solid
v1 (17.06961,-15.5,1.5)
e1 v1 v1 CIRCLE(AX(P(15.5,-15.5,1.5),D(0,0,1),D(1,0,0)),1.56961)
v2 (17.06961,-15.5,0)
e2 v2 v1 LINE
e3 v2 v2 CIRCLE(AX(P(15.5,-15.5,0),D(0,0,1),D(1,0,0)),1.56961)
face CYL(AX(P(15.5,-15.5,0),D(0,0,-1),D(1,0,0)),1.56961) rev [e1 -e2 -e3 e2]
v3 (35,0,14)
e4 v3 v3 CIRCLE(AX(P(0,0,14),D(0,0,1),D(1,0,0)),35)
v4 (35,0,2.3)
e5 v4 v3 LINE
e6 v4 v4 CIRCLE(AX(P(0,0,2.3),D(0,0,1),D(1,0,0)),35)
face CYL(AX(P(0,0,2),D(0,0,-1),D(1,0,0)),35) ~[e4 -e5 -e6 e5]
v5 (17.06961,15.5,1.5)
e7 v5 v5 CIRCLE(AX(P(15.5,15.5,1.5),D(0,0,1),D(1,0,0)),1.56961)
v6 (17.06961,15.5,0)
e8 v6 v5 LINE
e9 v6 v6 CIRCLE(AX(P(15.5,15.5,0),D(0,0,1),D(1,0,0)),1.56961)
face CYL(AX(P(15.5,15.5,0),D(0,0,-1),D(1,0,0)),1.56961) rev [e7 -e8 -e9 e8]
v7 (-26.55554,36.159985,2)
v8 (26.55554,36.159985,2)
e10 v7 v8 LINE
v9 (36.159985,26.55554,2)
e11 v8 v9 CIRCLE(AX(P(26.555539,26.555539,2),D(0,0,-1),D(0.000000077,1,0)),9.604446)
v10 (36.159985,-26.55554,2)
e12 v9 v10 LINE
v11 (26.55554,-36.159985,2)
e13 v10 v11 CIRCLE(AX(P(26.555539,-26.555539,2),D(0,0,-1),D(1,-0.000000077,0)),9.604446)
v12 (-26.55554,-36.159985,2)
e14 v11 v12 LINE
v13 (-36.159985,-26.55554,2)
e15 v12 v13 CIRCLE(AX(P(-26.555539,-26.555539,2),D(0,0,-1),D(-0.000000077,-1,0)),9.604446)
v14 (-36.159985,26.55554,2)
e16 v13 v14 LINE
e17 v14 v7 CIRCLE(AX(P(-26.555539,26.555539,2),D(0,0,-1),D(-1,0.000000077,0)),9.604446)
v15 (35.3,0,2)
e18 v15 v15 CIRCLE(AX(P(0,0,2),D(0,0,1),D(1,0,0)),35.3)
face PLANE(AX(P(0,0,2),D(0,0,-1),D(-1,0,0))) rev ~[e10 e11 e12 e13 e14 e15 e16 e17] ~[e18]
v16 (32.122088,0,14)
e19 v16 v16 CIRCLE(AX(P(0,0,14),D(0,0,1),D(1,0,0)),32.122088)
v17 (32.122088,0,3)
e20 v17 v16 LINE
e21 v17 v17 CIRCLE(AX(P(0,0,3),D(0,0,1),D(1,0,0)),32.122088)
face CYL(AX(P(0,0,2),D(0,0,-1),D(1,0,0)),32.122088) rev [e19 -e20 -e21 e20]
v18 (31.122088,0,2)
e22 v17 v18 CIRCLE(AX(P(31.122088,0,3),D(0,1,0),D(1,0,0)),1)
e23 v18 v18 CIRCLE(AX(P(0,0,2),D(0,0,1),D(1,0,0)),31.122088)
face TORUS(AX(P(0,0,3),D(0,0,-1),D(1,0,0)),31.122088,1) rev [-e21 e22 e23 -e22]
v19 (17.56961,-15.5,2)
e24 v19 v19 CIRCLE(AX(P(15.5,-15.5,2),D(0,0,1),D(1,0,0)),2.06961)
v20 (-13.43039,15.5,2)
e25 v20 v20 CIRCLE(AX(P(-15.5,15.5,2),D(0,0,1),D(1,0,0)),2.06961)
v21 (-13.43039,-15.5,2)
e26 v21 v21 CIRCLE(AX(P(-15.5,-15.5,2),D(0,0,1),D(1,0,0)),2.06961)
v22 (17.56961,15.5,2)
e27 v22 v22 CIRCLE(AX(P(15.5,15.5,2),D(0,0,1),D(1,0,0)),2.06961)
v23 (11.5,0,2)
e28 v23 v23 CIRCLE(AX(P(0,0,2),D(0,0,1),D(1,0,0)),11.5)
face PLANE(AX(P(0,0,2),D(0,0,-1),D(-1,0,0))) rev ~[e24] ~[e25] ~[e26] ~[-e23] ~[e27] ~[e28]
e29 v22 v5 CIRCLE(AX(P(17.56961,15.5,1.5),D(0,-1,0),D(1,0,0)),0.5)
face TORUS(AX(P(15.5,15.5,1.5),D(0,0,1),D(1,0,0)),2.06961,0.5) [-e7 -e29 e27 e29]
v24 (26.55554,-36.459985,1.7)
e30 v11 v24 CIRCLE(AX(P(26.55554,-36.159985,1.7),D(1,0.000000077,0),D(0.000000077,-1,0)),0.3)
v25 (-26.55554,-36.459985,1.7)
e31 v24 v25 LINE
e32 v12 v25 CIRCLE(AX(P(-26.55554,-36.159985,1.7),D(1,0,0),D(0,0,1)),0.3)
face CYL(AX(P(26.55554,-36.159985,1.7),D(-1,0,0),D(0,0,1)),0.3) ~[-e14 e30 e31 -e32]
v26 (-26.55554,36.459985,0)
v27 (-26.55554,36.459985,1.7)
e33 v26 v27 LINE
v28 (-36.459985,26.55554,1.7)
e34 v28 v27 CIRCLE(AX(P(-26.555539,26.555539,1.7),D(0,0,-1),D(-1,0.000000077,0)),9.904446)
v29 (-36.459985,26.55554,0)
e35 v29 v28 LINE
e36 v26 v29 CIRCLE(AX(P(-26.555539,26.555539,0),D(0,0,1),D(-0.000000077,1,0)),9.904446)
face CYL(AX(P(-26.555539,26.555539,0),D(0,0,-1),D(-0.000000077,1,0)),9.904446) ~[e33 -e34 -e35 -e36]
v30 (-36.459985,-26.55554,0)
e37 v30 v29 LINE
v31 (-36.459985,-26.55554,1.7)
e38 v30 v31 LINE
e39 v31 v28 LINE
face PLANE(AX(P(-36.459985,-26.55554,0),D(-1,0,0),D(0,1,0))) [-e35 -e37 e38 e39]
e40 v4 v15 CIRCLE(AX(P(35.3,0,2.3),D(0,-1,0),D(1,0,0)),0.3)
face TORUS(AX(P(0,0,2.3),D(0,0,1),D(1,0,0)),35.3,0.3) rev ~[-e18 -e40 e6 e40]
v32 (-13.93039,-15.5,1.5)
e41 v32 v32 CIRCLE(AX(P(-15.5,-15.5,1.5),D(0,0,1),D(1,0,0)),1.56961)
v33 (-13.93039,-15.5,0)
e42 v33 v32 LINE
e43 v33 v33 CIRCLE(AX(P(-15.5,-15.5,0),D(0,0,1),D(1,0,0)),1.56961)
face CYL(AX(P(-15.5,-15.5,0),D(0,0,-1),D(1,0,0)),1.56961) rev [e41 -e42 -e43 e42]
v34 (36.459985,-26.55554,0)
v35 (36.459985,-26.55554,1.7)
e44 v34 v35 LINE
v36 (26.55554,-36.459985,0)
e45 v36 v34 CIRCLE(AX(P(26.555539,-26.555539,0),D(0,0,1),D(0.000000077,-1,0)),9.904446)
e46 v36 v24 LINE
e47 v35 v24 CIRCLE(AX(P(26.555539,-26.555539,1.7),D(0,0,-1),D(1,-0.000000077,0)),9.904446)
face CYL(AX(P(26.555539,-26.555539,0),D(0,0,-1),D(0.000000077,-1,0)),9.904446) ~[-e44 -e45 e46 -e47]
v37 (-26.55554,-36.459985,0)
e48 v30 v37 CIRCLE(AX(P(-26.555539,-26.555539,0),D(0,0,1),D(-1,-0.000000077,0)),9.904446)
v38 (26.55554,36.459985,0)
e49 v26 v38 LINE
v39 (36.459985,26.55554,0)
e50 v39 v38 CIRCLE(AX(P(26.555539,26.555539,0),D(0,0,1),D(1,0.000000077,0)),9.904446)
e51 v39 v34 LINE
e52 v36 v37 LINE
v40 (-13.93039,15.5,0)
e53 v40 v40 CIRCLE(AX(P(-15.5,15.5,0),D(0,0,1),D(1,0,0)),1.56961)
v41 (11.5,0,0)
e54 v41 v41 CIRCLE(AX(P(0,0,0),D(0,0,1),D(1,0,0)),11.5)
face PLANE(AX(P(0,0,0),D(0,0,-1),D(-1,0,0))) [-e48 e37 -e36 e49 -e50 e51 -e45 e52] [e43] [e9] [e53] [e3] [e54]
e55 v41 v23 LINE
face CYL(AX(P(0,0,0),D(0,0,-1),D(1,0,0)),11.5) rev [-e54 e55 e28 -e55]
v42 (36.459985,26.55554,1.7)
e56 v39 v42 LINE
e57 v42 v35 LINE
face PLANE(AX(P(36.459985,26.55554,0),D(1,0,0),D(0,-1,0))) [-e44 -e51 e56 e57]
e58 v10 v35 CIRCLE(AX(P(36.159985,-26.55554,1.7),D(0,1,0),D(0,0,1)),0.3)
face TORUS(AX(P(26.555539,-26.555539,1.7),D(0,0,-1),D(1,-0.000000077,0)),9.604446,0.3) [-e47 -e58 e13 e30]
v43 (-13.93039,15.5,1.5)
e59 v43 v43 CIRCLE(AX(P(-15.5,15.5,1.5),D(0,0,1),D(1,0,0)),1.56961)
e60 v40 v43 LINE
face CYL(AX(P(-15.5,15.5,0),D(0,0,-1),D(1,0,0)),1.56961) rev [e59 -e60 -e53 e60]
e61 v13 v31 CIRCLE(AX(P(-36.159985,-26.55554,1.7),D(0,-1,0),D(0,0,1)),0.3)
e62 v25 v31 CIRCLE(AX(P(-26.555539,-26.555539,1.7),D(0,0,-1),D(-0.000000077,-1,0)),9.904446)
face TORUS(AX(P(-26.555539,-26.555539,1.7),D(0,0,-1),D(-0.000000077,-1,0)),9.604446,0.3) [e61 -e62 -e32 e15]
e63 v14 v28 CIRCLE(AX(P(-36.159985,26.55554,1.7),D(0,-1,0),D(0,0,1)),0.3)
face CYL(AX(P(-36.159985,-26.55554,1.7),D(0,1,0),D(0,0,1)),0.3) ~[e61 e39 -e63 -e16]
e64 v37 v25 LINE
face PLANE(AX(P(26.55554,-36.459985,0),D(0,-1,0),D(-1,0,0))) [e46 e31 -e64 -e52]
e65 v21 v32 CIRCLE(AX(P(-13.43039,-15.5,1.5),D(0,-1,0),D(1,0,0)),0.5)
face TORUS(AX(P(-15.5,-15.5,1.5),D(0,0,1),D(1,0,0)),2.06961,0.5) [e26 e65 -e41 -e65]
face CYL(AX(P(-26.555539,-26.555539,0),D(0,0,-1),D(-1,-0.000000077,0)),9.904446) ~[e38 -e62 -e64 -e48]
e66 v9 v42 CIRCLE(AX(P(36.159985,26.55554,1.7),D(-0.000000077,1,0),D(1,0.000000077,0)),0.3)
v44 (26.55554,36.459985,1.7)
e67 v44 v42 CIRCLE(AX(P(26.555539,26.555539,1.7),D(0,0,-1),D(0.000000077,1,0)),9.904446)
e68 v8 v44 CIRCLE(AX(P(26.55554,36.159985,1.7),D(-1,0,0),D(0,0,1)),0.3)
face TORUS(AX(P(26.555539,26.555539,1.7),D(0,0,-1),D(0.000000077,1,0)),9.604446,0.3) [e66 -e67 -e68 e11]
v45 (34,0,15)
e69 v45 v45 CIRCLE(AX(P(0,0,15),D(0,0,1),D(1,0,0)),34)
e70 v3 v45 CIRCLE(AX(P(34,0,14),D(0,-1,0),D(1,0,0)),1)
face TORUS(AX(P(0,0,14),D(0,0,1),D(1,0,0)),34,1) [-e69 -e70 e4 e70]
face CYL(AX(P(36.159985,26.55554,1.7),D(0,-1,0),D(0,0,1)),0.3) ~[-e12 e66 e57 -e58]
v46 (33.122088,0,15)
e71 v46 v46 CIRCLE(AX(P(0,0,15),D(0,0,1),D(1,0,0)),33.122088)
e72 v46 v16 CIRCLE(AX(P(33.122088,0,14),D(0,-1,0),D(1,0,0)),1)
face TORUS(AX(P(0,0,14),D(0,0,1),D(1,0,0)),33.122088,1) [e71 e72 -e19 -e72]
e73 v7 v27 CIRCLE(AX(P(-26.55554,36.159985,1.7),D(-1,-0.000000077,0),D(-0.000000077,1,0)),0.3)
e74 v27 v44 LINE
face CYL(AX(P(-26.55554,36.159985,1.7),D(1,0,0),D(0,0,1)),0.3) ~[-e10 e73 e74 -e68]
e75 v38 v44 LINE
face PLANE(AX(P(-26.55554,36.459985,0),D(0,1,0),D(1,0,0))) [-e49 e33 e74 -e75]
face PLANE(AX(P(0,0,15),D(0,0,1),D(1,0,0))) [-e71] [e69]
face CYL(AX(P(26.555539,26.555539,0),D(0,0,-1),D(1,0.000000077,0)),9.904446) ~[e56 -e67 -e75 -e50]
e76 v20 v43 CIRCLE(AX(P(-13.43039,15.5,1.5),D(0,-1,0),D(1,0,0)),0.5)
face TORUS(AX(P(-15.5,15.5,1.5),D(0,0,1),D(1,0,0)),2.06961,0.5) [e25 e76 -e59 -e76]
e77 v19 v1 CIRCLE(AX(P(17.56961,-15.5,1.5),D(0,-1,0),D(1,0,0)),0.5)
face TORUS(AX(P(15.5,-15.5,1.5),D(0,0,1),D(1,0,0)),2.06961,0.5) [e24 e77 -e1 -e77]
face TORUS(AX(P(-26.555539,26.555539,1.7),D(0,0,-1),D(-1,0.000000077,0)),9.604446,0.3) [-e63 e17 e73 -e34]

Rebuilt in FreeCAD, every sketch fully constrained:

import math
import FreeCAD as App
import Part
import Sketcher
from FreeCAD import Vector
Q = App.Units.Quantity


def edges_at(feature, points):
    """Names of the edges that pass closest to the given points."""
    edges = feature.Shape.Edges
    near = lambda p: min(range(len(edges)), key=lambda i: edges[i].distToShape(Part.Vertex(*p))[0])
    return sorted({f"Edge{near(p) + 1}" for p in points})

doc = App.newDocument("Part")
params = doc.addObject("Spreadsheet::Sheet", "Params")
for row, (alias, value) in enumerate([
    ("sketch1_diameter", "23 mm"),
    ("pad1_length", "2 mm"),
    ("sketch2_diameter", "70 mm"),
    ("pad2_length", "13 mm"),
    ("fillet_radius", "1 mm"),
    ("fillet2_radius", "0.3 mm"),
    ("fillet3_radius", "1 mm"),
    ("fillet4_radius", "0.5 mm"),
], start=1):
    params.set(f"A{row}", alias)
    params.set(f"B{row}", "=" + value)
    params.setAlias(f"B{row}", alias)

body = doc.addObject("PartDesign::Body", "Body")

# Sketch on XY plane
sketch1 = doc.addObject("Sketcher::SketchObject", "Sketch")
body.addObject(sketch1)
sketch1.AttachmentSupport = (doc.XY_Plane, [""])
sketch1.MapMode = "FlatFace"
sketch1.addGeometry([
    Part.LineSegment(Vector(26.6, 36.5, 0), Vector(-26.6, 36.5, 0)),  # 0
    Part.ArcOfCircle(Part.Circle(Vector(-26.6, 26.6, 0), Vector(0, 0, 1), 9.9), math.radians(90), math.radians(180)),  # 1
    Part.LineSegment(Vector(-36.5, 26.6, 0), Vector(-36.5, -26.6, 0)),  # 2
    Part.ArcOfCircle(Part.Circle(Vector(-26.6, -26.6, 0), Vector(0, 0, 1), 9.9), math.radians(-180), math.radians(-90)),  # 3
    Part.LineSegment(Vector(-26.6, -36.5, 0), Vector(26.6, -36.5, 0)),  # 4
    Part.ArcOfCircle(Part.Circle(Vector(26.6, -26.6, 0), Vector(0, 0, 1), 9.9), math.radians(-90), math.radians(0)),  # 5
    Part.LineSegment(Vector(36.5, -26.6, 0), Vector(36.5, 26.6, 0)),  # 6
    Part.ArcOfCircle(Part.Circle(Vector(26.6, 26.6, 0), Vector(0, 0, 1), 9.9), math.radians(0), math.radians(90)),  # 7
    Part.Circle(Vector(15.5, -15.5, 0), Vector(0, 0, 1), 1.6),  # 8
    Part.Circle(Vector(-15.5, -15.5, 0), Vector(0, 0, 1), 1.6),  # 9
    Part.Circle(Vector(0, 0, 0), Vector(0, 0, 1), 11.5),  # 10
    Part.Circle(Vector(15.5, 15.5, 0), Vector(0, 0, 1), 1.6),  # 11
    Part.Circle(Vector(-15.5, 15.5, 0), Vector(0, 0, 1), 1.6),  # 12
], False)
sketch1.addConstraint([
    Sketcher.Constraint("Tangent", 0, 2, 1, 1),
    Sketcher.Constraint("Tangent", 1, 2, 2, 1),
    Sketcher.Constraint("Tangent", 2, 2, 3, 1),
    Sketcher.Constraint("Tangent", 3, 2, 4, 1),
    Sketcher.Constraint("Tangent", 4, 2, 5, 1),
    Sketcher.Constraint("Tangent", 5, 2, 6, 1),
    Sketcher.Constraint("Tangent", 6, 2, 7, 1),
    Sketcher.Constraint("Tangent", 7, 2, 0, 1),
    Sketcher.Constraint("Horizontal", 0),
    Sketcher.Constraint("Vertical", 2),
    Sketcher.Constraint("Horizontal", 4),
    Sketcher.Constraint("Vertical", 6),
    Sketcher.Constraint("Coincident", 10, 3, -1, 1),
    Sketcher.Constraint("Equal", 1, 3),
    Sketcher.Constraint("Equal", 3, 5),
    Sketcher.Constraint("Equal", 5, 7),
    Sketcher.Constraint("Equal", 8, 9),
    Sketcher.Constraint("Equal", 9, 11),
    Sketcher.Constraint("Equal", 11, 12),
    Sketcher.Constraint("Symmetric", 1, 3, 5, 3, -1, 1),
    Sketcher.Constraint("Symmetric", 9, 3, 11, 3, -1, 1),
    Sketcher.Constraint("Symmetric", 8, 3, 12, 3, -1, 1),
    Sketcher.Constraint("Symmetric", 8, 3, 9, 3, -2),
    Sketcher.Constraint("Equal", 4, 2),
    Sketcher.Constraint("Diameter", 10, Q("23 mm")),
    Sketcher.Constraint("DistanceX", 9, 3, 8, 3, Q("31 mm")),
    Sketcher.Constraint("DistanceY", 8, 3, 11, 3, Q("31 mm")),
    Sketcher.Constraint("Diameter", 8, Q("3.13922 mm")),
    Sketcher.Constraint("Radius", 1, Q("9.904446 mm")),
    Sketcher.Constraint("DistanceX", 0, 2, 0, 1, Q("53.11108 mm")),
])
sketch1.setExpression("Constraints[24]", "Params.sketch1_diameter")
pad1 = doc.addObject("PartDesign::Pad", "Pad")
body.addObject(pad1)
pad1.Profile = sketch1
pad1.setExpression("Length", "Params.pad1_length")

# Sketch on XY plane
sketch2 = doc.addObject("Sketcher::SketchObject", "Sketch001")
body.addObject(sketch2)
sketch2.AttachmentSupport = (doc.XY_Plane, [""])
sketch2.MapMode = "FlatFace"
sketch2.AttachmentOffset = App.Placement(Vector(0, 0, 2), App.Rotation())
sketch2.addGeometry([
    Part.Circle(Vector(0, 0, 0), Vector(0, 0, 1), 35),
    Part.Circle(Vector(0, 0, 0), Vector(0, 0, 1), 32),
], False)
sketch2.addConstraint([
    Sketcher.Constraint("Coincident", 0, 3, -1, 1),
    Sketcher.Constraint("Coincident", 1, 3, -1, 1),
    Sketcher.Constraint("Diameter", 0, Q("70 mm")),
    Sketcher.Constraint("Diameter", 1, Q("64.244176 mm")),
])
sketch2.setExpression("Constraints[2]", "Params.sketch2_diameter")
pad2 = doc.addObject("PartDesign::Pad", "Pad001")
body.addObject(pad2)
pad2.Profile = sketch2
pad2.setExpression("Length", "Params.pad2_length")
doc.recompute()

fillet = doc.addObject("PartDesign::Fillet", "Fillet")
body.addObject(fillet)
fillet.Base = (pad2, edges_at(pad2, [(-35, 0, 15), (-32.122, 0, 15)]))
fillet.setExpression("Radius", "Params.fillet_radius")
doc.recompute()

fillet2 = doc.addObject("PartDesign::Fillet", "Fillet001")
body.addObject(fillet2)
fillet2.Base = (fillet, edges_at(fillet, [
    (-36.46, 0, 2),
    (-33.559, -33.559, 2),
    (-33.559, 33.559, 2),
    (0, -36.46, 2),
    (0, 36.46, 2),
    (33.559, -33.559, 2),
    (33.559, 33.559, 2),
    (36.46, 0, 2),
    (-35, 0, 2),
]))
fillet2.setExpression("Radius", "Params.fillet2_radius")
doc.recompute()

fillet3 = doc.addObject("PartDesign::Fillet", "Fillet002")
body.addObject(fillet3)
fillet3.Base = (fillet2, edges_at(fillet2, [(-32.122, 0, 2)]))
fillet3.setExpression("Radius", "Params.fillet3_radius")
doc.recompute()

fillet4 = doc.addObject("PartDesign::Fillet", "Fillet003")
body.addObject(fillet4)
fillet4.Base = (fillet3, edges_at(fillet3, [
    (13.93, 15.5, 2),
    (13.93, -15.5, 2),
    (-17.07, -15.5, 2),
    (-17.07, 15.5, 2),
]))
fillet4.setExpression("Radius", "Params.fillet4_radius")

doc.recompute()
